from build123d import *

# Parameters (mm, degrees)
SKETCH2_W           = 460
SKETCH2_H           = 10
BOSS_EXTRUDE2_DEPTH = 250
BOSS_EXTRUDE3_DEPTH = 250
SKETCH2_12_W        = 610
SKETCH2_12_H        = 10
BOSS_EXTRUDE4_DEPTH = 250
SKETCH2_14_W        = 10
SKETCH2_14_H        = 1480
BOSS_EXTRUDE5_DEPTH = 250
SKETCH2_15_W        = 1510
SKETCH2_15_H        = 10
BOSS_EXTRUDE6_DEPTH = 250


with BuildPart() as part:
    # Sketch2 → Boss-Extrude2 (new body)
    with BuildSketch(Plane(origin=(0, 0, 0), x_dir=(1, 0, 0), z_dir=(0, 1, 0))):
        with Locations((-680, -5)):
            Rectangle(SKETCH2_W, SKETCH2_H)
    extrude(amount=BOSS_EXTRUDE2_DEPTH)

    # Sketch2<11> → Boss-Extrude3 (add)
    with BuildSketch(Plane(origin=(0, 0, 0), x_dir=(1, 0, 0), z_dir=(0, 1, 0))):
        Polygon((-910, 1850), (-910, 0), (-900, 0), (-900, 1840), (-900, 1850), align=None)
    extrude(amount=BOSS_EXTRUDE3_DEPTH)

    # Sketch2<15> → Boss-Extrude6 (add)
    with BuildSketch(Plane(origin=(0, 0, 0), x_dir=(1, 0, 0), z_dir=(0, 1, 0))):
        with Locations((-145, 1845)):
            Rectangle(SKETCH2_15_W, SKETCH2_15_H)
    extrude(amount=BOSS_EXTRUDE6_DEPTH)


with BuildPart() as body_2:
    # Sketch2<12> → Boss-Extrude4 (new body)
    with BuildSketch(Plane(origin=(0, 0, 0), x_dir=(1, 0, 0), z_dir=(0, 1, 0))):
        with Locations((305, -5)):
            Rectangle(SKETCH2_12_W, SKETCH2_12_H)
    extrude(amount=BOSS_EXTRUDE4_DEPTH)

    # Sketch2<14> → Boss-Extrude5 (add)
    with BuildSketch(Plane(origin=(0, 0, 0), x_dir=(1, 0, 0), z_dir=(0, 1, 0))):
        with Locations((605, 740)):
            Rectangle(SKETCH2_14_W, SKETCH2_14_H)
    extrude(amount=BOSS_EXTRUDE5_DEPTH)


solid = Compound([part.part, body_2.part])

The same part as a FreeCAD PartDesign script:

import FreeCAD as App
import Part
import Sketcher

V = App.Vector
Q = App.Units.Quantity


def add_polygon(sketch, points):
    """Adds a closed chain of lines whose ends are joined by coincident constraints."""
    first, n = sketch.GeometryCount, len(points)
    for a, b in zip(points, points[1:] + points[:1]):
        sketch.addGeometry(Part.LineSegment(App.Vector(*a, 0), App.Vector(*b, 0)), False)
    for i in range(n):
        sketch.addConstraint(Sketcher.Constraint("Coincident", first + i, 2, first + (i + 1) % n, 1))

doc = App.newDocument("Part")
body = doc.addObject("PartDesign::Body", "Body")

sketch1 = doc.addObject("Sketcher::SketchObject", "Sketch")
body.addObject(sketch1)
sketch1.AttachmentSupport = (doc.XZ_Plane, [""])
sketch1.MapMode = "FlatFace"
add_polygon(sketch1, [(-910, 0), (-910, 10), (-450, 10), (-450, 0)])
sketch1.addConstraint(Sketcher.Constraint("Vertical", 0))
sketch1.addConstraint(Sketcher.Constraint("Horizontal", 1))
sketch1.addConstraint(Sketcher.Constraint("Vertical", 2))
sketch1.addConstraint(Sketcher.Constraint("Horizontal", 3))
sketch1.addConstraint(Sketcher.Constraint("PointOnObject", 2, 2, -1))
sketch1.addConstraint(Sketcher.Constraint("DistanceX", 1, 1, 1, 2, Q("460 mm")))
sketch1.addConstraint(Sketcher.Constraint("DistanceY", 0, 1, 0, 2, Q("10 mm")))
sketch1.addConstraint(Sketcher.Constraint("DistanceX", 0, 2, -1, 1, Q("910 mm")))
pad1 = doc.addObject("PartDesign::Pad", "Pad")
body.addObject(pad1)
pad1.Profile = sketch1
pad1.Length = 250
pad1.Reversed = True

sketch2 = doc.addObject("Sketcher::SketchObject", "Sketch001")
body.addObject(sketch2)
sketch2.AttachmentSupport = (doc.XZ_Plane, [""])
sketch2.MapMode = "FlatFace"
add_polygon(sketch2, [(-910, -1850), (-910, 0), (-900, 0), (-900, -1850)])
sketch2.addConstraint(Sketcher.Constraint("Vertical", 0))
sketch2.addConstraint(Sketcher.Constraint("Horizontal", 1))
sketch2.addConstraint(Sketcher.Constraint("Vertical", 2))
sketch2.addConstraint(Sketcher.Constraint("Horizontal", 3))
sketch2.addConstraint(Sketcher.Constraint("PointOnObject", 0, 2, -1))
sketch2.addConstraint(Sketcher.Constraint("DistanceX", 1, 1, 1, 2, Q("10 mm")))
sketch2.addConstraint(Sketcher.Constraint("DistanceY", 0, 1, 0, 2, Q("1850 mm")))
sketch2.addConstraint(Sketcher.Constraint("DistanceX", 0, 2, -1, 1, Q("910 mm")))
pad2 = doc.addObject("PartDesign::Pad", "Pad001")
body.addObject(pad2)
pad2.Profile = sketch2
pad2.Length = 250
pad2.Reversed = True

sketch3 = doc.addObject("Sketcher::SketchObject", "Sketch002")
body.addObject(sketch3)
sketch3.AttachmentSupport = (doc.XZ_Plane, [""])
sketch3.MapMode = "FlatFace"
add_polygon(sketch3, [(-900, -1850), (-900, -1840), (610, -1840), (610, -1850)])
sketch3.addConstraint(Sketcher.Constraint("Vertical", 0))
sketch3.addConstraint(Sketcher.Constraint("Horizontal", 1))
sketch3.addConstraint(Sketcher.Constraint("Vertical", 2))
sketch3.addConstraint(Sketcher.Constraint("Horizontal", 3))
sketch3.addConstraint(Sketcher.Constraint("DistanceX", 1, 1, 1, 2, Q("1510 mm")))
sketch3.addConstraint(Sketcher.Constraint("DistanceY", 0, 1, 0, 2, Q("10 mm")))
sketch3.addConstraint(Sketcher.Constraint("DistanceX", 0, 2, -1, 1, Q("900 mm")))
sketch3.addConstraint(Sketcher.Constraint("DistanceY", 0, 2, -1, 1, Q("1840 mm")))
pad3 = doc.addObject("PartDesign::Pad", "Pad002")
body.addObject(pad3)
pad3.Profile = sketch3
pad3.Length = 250
pad3.Reversed = True
body2 = doc.addObject("PartDesign::Body", "Body001")

sketch4 = doc.addObject("Sketcher::SketchObject", "Sketch003")
body2.addObject(sketch4)
sketch4.AttachmentSupport = (doc.getObject("XZ_Plane001"), [""])
sketch4.MapMode = "FlatFace"
add_polygon(sketch4, [(0, 0), (0, 10), (610, 10), (610, 0)])
sketch4.addConstraint(Sketcher.Constraint("Vertical", 0))
sketch4.addConstraint(Sketcher.Constraint("Horizontal", 1))
sketch4.addConstraint(Sketcher.Constraint("Vertical", 2))
sketch4.addConstraint(Sketcher.Constraint("Horizontal", 3))
sketch4.addConstraint(Sketcher.Constraint("Coincident", 3, 2, -1, 1))
sketch4.addConstraint(Sketcher.Constraint("DistanceX", 1, 1, 1, 2, Q("610 mm")))
sketch4.addConstraint(Sketcher.Constraint("DistanceY", 0, 1, 0, 2, Q("10 mm")))
pad4 = doc.addObject("PartDesign::Pad", "Pad003")
body2.addObject(pad4)
pad4.Profile = sketch4
pad4.Length = 250
pad4.Reversed = True

sketch5 = doc.addObject("Sketcher::SketchObject", "Sketch004")
body2.addObject(sketch5)
sketch5.AttachmentSupport = (doc.getObject("XZ_Plane001"), [""])
sketch5.MapMode = "FlatFace"
add_polygon(sketch5, [(600, -1480), (600, 0), (610, 0), (610, -1480)])
sketch5.addConstraint(Sketcher.Constraint("Vertical", 0))
sketch5.addConstraint(Sketcher.Constraint("Horizontal", 1))
sketch5.addConstraint(Sketcher.Constraint("Vertical", 2))
sketch5.addConstraint(Sketcher.Constraint("Horizontal", 3))
sketch5.addConstraint(Sketcher.Constraint("PointOnObject", 0, 2, -1))
sketch5.addConstraint(Sketcher.Constraint("DistanceX", 1, 1, 1, 2, Q("10 mm")))
sketch5.addConstraint(Sketcher.Constraint("DistanceY", 0, 1, 0, 2, Q("1480 mm")))
sketch5.addConstraint(Sketcher.Constraint("DistanceX", -1, 1, 0, 2, Q("600 mm")))
pad5 = doc.addObject("PartDesign::Pad", "Pad004")
body2.addObject(pad5)
pad5.Profile = sketch5
pad5.Length = 250
pad5.Reversed = True

doc.recompute()
